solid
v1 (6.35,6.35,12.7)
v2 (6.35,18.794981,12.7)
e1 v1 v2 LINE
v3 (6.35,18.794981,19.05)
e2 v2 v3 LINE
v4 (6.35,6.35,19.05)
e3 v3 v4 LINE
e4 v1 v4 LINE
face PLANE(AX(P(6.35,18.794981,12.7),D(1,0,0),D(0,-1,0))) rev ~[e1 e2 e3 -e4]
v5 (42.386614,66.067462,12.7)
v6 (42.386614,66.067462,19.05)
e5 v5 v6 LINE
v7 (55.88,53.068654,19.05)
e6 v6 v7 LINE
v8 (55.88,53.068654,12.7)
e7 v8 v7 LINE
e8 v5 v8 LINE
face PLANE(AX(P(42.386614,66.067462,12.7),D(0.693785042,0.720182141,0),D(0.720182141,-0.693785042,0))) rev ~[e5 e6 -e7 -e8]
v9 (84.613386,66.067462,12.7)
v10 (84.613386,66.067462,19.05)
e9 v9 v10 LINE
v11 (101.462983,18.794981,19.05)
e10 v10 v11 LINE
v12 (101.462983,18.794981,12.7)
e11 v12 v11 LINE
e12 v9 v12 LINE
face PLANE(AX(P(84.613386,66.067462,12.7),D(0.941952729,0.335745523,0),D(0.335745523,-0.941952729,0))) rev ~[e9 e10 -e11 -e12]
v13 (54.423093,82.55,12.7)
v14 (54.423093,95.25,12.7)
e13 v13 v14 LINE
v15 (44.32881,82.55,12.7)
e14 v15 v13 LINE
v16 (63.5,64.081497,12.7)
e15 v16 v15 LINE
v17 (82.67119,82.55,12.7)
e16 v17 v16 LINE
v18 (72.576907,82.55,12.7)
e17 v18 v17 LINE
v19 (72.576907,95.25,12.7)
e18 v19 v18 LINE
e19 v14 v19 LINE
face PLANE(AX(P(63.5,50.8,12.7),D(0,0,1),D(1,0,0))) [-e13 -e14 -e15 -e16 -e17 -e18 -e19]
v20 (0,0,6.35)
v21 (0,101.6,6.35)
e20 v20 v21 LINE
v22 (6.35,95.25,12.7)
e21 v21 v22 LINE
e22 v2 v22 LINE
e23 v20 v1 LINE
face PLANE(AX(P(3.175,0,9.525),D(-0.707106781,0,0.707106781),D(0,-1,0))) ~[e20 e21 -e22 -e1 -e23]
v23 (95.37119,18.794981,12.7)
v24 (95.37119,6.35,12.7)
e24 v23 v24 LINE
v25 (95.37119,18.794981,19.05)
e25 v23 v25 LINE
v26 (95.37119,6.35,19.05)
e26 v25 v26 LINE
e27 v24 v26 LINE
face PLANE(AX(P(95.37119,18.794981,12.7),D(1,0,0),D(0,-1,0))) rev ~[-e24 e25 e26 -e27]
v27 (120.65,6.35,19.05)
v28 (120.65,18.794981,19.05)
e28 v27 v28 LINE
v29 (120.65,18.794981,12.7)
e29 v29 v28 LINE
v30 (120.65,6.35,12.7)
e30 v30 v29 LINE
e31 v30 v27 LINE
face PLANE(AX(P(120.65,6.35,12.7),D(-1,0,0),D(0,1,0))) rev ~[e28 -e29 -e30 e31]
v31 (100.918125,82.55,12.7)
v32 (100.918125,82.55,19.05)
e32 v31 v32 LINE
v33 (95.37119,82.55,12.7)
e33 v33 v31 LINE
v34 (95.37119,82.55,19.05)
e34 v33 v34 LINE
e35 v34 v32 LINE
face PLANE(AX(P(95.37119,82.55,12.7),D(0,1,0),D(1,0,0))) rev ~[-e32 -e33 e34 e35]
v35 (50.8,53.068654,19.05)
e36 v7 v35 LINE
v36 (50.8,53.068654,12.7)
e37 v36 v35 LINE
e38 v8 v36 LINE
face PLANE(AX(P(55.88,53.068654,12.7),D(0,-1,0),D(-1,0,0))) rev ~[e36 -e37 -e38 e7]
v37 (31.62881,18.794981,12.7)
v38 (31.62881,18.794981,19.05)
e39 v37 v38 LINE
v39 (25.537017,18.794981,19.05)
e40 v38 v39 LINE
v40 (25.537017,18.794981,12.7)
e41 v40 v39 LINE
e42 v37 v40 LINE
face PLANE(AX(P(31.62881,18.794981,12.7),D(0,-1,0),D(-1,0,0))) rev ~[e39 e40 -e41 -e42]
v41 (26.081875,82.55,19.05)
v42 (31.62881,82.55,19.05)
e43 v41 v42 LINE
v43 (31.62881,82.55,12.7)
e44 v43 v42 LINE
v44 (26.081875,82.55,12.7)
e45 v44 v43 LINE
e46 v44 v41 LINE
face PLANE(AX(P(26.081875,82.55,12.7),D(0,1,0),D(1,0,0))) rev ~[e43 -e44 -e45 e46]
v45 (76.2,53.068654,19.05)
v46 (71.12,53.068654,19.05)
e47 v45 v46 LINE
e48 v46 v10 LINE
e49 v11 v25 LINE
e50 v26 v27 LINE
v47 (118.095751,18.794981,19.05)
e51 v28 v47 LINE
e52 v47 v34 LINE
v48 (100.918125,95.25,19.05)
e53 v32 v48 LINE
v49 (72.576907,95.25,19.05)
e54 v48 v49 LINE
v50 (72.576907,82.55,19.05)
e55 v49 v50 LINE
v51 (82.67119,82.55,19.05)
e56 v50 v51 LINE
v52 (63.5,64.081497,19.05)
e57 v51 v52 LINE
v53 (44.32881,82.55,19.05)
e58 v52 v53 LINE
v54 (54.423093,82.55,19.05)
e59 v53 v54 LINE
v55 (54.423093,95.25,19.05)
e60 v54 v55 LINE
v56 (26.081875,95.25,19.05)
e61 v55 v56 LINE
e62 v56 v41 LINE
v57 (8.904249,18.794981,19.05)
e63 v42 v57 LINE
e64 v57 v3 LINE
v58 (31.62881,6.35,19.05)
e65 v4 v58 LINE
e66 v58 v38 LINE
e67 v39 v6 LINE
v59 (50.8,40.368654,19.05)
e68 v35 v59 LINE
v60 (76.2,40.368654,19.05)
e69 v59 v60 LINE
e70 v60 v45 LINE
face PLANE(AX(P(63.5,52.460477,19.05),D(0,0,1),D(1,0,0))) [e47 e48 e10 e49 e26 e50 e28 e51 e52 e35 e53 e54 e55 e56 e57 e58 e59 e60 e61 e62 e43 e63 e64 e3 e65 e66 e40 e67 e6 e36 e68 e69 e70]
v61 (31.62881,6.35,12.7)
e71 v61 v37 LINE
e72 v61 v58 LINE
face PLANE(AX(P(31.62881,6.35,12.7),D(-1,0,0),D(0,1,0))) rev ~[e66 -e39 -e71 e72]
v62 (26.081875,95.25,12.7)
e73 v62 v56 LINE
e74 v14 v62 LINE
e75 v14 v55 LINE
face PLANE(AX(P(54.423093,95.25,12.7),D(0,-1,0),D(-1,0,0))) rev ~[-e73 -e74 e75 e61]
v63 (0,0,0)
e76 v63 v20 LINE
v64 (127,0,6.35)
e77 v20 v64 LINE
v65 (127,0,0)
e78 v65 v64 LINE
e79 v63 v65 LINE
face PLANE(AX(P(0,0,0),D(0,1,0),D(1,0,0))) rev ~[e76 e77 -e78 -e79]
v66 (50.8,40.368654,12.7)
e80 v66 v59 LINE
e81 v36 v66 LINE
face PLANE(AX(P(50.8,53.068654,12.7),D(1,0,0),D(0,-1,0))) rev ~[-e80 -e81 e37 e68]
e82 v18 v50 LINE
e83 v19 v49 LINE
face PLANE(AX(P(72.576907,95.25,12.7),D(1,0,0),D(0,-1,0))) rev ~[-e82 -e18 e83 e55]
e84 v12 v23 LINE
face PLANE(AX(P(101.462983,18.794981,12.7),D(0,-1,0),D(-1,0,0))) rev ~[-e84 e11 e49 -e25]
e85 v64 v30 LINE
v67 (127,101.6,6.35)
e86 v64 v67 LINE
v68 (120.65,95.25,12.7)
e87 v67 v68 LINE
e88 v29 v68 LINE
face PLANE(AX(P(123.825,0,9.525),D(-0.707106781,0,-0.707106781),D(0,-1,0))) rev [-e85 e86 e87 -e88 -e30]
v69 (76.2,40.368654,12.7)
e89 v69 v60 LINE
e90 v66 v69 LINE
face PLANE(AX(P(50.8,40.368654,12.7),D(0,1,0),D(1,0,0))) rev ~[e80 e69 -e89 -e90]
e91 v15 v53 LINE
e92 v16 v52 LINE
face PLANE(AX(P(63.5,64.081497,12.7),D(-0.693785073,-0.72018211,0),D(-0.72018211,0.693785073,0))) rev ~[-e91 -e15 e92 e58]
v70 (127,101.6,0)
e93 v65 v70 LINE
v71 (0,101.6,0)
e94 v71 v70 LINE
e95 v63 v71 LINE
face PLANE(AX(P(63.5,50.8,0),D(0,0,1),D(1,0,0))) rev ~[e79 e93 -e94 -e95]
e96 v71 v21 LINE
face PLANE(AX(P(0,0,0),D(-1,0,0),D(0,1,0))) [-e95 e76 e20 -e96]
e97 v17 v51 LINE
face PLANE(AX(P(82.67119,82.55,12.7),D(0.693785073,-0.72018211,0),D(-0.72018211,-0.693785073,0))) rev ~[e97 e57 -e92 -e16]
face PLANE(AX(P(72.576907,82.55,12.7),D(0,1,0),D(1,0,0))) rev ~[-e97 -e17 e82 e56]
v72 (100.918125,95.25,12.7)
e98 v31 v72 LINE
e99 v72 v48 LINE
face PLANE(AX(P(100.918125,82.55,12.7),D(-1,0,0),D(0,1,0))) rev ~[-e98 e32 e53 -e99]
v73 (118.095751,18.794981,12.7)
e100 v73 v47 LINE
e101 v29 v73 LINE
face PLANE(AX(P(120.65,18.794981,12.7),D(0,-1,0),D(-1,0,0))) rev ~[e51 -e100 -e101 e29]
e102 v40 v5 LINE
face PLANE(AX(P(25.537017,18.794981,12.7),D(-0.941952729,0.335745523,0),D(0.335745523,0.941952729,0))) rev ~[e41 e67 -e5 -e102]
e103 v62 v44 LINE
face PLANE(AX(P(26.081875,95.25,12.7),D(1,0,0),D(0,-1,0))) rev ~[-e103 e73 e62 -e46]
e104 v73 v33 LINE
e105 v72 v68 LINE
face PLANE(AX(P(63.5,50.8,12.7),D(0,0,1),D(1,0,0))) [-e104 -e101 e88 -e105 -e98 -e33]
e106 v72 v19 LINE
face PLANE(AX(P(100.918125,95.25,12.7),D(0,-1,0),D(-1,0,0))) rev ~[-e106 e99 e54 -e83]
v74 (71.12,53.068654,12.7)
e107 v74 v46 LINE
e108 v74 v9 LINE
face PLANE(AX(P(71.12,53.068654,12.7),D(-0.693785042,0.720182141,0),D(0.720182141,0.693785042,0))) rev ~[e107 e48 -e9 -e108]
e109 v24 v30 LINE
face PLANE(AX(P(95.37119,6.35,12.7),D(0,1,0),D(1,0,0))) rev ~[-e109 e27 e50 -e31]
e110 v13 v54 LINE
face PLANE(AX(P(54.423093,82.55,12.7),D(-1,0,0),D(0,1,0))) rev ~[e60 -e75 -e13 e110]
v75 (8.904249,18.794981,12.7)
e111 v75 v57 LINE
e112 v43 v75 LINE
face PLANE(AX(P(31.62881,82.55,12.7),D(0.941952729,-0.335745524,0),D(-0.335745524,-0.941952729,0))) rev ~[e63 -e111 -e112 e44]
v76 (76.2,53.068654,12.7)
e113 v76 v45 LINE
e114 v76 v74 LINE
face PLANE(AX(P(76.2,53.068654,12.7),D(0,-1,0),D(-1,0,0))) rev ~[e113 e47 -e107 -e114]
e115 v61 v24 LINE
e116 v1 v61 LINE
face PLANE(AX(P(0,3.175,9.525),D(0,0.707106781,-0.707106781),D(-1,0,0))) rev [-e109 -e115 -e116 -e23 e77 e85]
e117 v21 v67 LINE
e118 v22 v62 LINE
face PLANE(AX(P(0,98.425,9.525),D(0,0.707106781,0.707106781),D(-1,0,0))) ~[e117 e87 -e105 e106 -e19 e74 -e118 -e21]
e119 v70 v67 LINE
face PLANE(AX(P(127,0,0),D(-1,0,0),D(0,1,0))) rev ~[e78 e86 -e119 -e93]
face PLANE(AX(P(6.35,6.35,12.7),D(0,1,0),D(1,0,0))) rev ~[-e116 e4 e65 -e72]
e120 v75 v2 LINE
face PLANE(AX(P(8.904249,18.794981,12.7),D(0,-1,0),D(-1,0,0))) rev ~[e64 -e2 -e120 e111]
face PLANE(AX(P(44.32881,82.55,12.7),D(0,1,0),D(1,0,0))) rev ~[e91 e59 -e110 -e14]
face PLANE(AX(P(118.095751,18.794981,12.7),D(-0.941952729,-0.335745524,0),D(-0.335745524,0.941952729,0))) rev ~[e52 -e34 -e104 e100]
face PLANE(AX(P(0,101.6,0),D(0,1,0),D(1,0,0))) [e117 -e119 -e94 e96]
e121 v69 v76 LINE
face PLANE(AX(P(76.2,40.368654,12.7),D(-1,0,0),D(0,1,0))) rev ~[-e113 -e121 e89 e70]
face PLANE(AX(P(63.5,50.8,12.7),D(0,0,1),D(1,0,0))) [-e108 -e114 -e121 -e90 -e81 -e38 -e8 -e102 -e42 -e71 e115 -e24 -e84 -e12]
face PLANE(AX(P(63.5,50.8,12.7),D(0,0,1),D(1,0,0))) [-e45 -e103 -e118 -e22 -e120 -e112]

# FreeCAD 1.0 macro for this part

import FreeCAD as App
import Part
import Sketcher
from FreeCAD import Vector
Q = App.Units.Quantity


def edges_at(feature, points):
    """Names of the edges that pass closest to the given points."""
    edges = feature.Shape.Edges
    near = lambda p: min(range(len(edges)), key=lambda i: edges[i].distToShape(Part.Vertex(*p))[0])
    return sorted({f"Edge{near(p) + 1}" for p in points})

doc = App.newDocument("Part")
body = doc.addObject("PartDesign::Body", "Body")

# Sketch on XY plane
sketch1 = doc.addObject("Sketcher::SketchObject", "Sketch")
body.addObject(sketch1)
sketch1.AttachmentSupport = (doc.XY_Plane, [""])
sketch1.MapMode = "FlatFace"
sketch1.addGeometry([
    Part.LineSegment(Vector(0, 102, 0), Vector(0, 0, 0)),
    Part.LineSegment(Vector(0, 0, 0), Vector(127, 0, 0)),
    Part.LineSegment(Vector(127, 0, 0), Vector(127, 102, 0)),
    Part.LineSegment(Vector(127, 102, 0), Vector(0, 102, 0)),
], False)
sketch1.addConstraint([
    Sketcher.Constraint("Coincident", 0, 2, 1, 1),
    Sketcher.Constraint("Coincident", 1, 2, 2, 1),
    Sketcher.Constraint("Coincident", 2, 2, 3, 1),
    Sketcher.Constraint("Coincident", 3, 2, 0, 1),
    Sketcher.Constraint("Vertical", 0),
    Sketcher.Constraint("Horizontal", 1),
    Sketcher.Constraint("Vertical", 2),
    Sketcher.Constraint("Horizontal", 3),
    Sketcher.Constraint("Coincident", 0, 2, -1, 1),
    Sketcher.Constraint("DistanceX", 1, 1, 1, 2, Q("5 in")),
    Sketcher.Constraint("DistanceY", 0, 2, 0, 1, Q("4 in")),
])
pad1 = doc.addObject("PartDesign::Pad", "Pad")
body.addObject(pad1)
pad1.Profile = sketch1
pad1.Length = Q("0.5 in")
doc.recompute()

chamfer = doc.addObject("PartDesign::Chamfer", "Chamfer")
body.addObject(chamfer)
chamfer.Base = (pad1, edges_at(pad1, [
    (0, 50.8, 12.7),
    (63.5, 101.6, 12.7),
    (127, 50.8, 12.7),
    (63.5, 0, 12.7),
]))
chamfer.Size = Q("0.25 in")

# Sketch on XY plane
sketch2 = doc.addObject("Sketcher::SketchObject", "Sketch001")
body.addObject(sketch2)
sketch2.AttachmentSupport = (doc.XY_Plane, [""])
sketch2.MapMode = "FlatFace"
sketch2.AttachmentOffset = App.Placement(Vector(0, 0, 0.5 * 25.4), App.Rotation())
sketch2.addGeometry([
    Part.LineSegment(Vector(82.7, 82.5, 0), Vector(63.5, 64.1, 0)),  # 0
    Part.LineSegment(Vector(63.5, 64.1, 0), Vector(44.3, 82.5, 0)),  # 1
    Part.LineSegment(Vector(44.3, 82.5, 0), Vector(54.4, 82.5, 0)),  # 2
    Part.LineSegment(Vector(54.4, 82.5, 0), Vector(54.4, 95.2, 0)),  # 3
    Part.LineSegment(Vector(54.4, 95.2, 0), Vector(26.1, 95.2, 0)),  # 4
    Part.LineSegment(Vector(26.1, 95.2, 0), Vector(26.1, 82.5, 0)),  # 5
    Part.LineSegment(Vector(26.1, 82.5, 0), Vector(31.6, 82.5, 0)),  # 6
    Part.LineSegment(Vector(31.6, 82.5, 0), Vector(8.9, 18.8, 0)),  # 7
    Part.LineSegment(Vector(8.9, 18.8, 0), Vector(6.3, 18.8, 0)),  # 8
    Part.LineSegment(Vector(6.3, 18.8, 0), Vector(6.3, 6.3, 0)),  # 9
    Part.LineSegment(Vector(6.3, 6.3, 0), Vector(31.6, 6.3, 0)),  # 10
    Part.LineSegment(Vector(31.6, 6.3, 0), Vector(31.6, 18.8, 0)),  # 11
    Part.LineSegment(Vector(31.6, 18.8, 0), Vector(25.5, 18.8, 0)),  # 12
    Part.LineSegment(Vector(25.5, 18.8, 0), Vector(42.4, 66.1, 0)),  # 13
    Part.LineSegment(Vector(42.4, 66.1, 0), Vector(55.9, 53.1, 0)),  # 14
    Part.LineSegment(Vector(55.9, 53.1, 0), Vector(50.8, 53.1, 0)),  # 15
    Part.LineSegment(Vector(50.8, 53.1, 0), Vector(50.8, 40.4, 0)),  # 16
    Part.LineSegment(Vector(50.8, 40.4, 0), Vector(76.2, 40.4, 0)),  # 17
    Part.LineSegment(Vector(76.2, 40.4, 0), Vector(76.2, 53.1, 0)),  # 18
    Part.LineSegment(Vector(76.2, 53.1, 0), Vector(71.1, 53.1, 0)),  # 19
    Part.LineSegment(Vector(71.1, 53.1, 0), Vector(84.6, 66.1, 0)),  # 20
    Part.LineSegment(Vector(84.6, 66.1, 0), Vector(101.5, 18.8, 0)),  # 21
    Part.LineSegment(Vector(101.5, 18.8, 0), Vector(95.4, 18.8, 0)),  # 22
    Part.LineSegment(Vector(95.4, 18.8, 0), Vector(95.4, 6.3, 0)),  # 23
    Part.LineSegment(Vector(95.4, 6.3, 0), Vector(120.7, 6.3, 0)),  # 24
    Part.LineSegment(Vector(120.7, 6.3, 0), Vector(120.7, 18.8, 0)),  # 25
    Part.LineSegment(Vector(120.7, 18.8, 0), Vector(118.1, 18.8, 0)),  # 26
    Part.LineSegment(Vector(118.1, 18.8, 0), Vector(95.4, 82.5, 0)),  # 27
    Part.LineSegment(Vector(95.4, 82.5, 0), Vector(100.9, 82.5, 0)),  # 28
    Part.LineSegment(Vector(100.9, 82.5, 0), Vector(100.9, 95.2, 0)),  # 29
    Part.LineSegment(Vector(100.9, 95.2, 0), Vector(72.6, 95.2, 0)),  # 30
    Part.LineSegment(Vector(72.6, 95.2, 0), Vector(72.6, 82.5, 0)),  # 31
    Part.LineSegment(Vector(72.6, 82.5, 0), Vector(82.7, 82.5, 0)),  # 32
], False)
sketch2.addConstraint([
    Sketcher.Constraint("Coincident", 0, 2, 1, 1),
    Sketcher.Constraint("Coincident", 1, 2, 2, 1),
    Sketcher.Constraint("Coincident", 2, 2, 3, 1),
    Sketcher.Constraint("Coincident", 3, 2, 4, 1),
    Sketcher.Constraint("Coincident", 4, 2, 5, 1),
    Sketcher.Constraint("Coincident", 5, 2, 6, 1),
    Sketcher.Constraint("Coincident", 6, 2, 7, 1),
    Sketcher.Constraint("Coincident", 7, 2, 8, 1),
    Sketcher.Constraint("Coincident", 8, 2, 9, 1),
    Sketcher.Constraint("Coincident", 9, 2, 10, 1),
    Sketcher.Constraint("Coincident", 10, 2, 11, 1),
    Sketcher.Constraint("Coincident", 11, 2, 12, 1),
    Sketcher.Constraint("Coincident", 12, 2, 13, 1),
    Sketcher.Constraint("Coincident", 13, 2, 14, 1),
    Sketcher.Constraint("Coincident", 14, 2, 15, 1),
    Sketcher.Constraint("Coincident", 15, 2, 16, 1),
    Sketcher.Constraint("Coincident", 16, 2, 17, 1),
    Sketcher.Constraint("Coincident", 17, 2, 18, 1),
    Sketcher.Constraint("Coincident", 18, 2, 19, 1),
    Sketcher.Constraint("Coincident", 19, 2, 20, 1),
    Sketcher.Constraint("Coincident", 20, 2, 21, 1),
    Sketcher.Constraint("Coincident", 21, 2, 22, 1),
    Sketcher.Constraint("Coincident", 22, 2, 23, 1),
    Sketcher.Constraint("Coincident", 23, 2, 24, 1),
    Sketcher.Constraint("Coincident", 24, 2, 25, 1),
    Sketcher.Constraint("Coincident", 25, 2, 26, 1),
    Sketcher.Constraint("Coincident", 26, 2, 27, 1),
    Sketcher.Constraint("Coincident", 27, 2, 28, 1),
    Sketcher.Constraint("Coincident", 28, 2, 29, 1),
    Sketcher.Constraint("Coincident", 29, 2, 30, 1),
    Sketcher.Constraint("Coincident", 30, 2, 31, 1),
    Sketcher.Constraint("Coincident", 31, 2, 32, 1),
    Sketcher.Constraint("Coincident", 32, 2, 0, 1),
    Sketcher.Constraint("Horizontal", 2),
    Sketcher.Constraint("Vertical", 3),
    Sketcher.Constraint("Horizontal", 4),
    Sketcher.Constraint("Vertical", 5),
    Sketcher.Constraint("Horizontal", 6),
    Sketcher.Constraint("Horizontal", 8),
    Sketcher.Constraint("Vertical", 9),
    Sketcher.Constraint("Horizontal", 10),
    Sketcher.Constraint("Vertical", 11),
    Sketcher.Constraint("Horizontal", 12),
    Sketcher.Constraint("Horizontal", 15),
    Sketcher.Constraint("Vertical", 16),
    Sketcher.Constraint("Horizontal", 17),
    Sketcher.Constraint("Vertical", 18),
    Sketcher.Constraint("Horizontal", 19),
    Sketcher.Constraint("Horizontal", 22),
    Sketcher.Constraint("Vertical", 23),
    Sketcher.Constraint("Horizontal", 24),
    Sketcher.Constraint("Vertical", 25),
    Sketcher.Constraint("Horizontal", 26),
    Sketcher.Constraint("Horizontal", 28),
    Sketcher.Constraint("Vertical", 29),
    Sketcher.Constraint("Horizontal", 30),
    Sketcher.Constraint("Vertical", 31),
    Sketcher.Constraint("Horizontal", 32),
    Sketcher.Constraint("Parallel", 7, 13),
    Sketcher.Constraint("Parallel", 1, 14),
    Sketcher.Constraint("Parallel", 0, 20),
    Sketcher.Constraint("Parallel", 21, 27),
    Sketcher.Constraint("Horizontal", 2, 2, 5, 2),
    Sketcher.Constraint("Horizontal", 8, 2, 11, 2),
    Sketcher.Constraint("Horizontal", 15, 2, 18, 2),
    Sketcher.Constraint("Horizontal", 13, 2, 20, 2),
    Sketcher.Constraint("Horizontal", 12, 2, 21, 2),
    Sketcher.Constraint("Horizontal", 10, 2, 23, 2),
    Sketcher.Constraint("Horizontal", 22, 2, 25, 2),
    Sketcher.Constraint("Horizontal", 6, 2, 27, 2),
    Sketcher.Constraint("Horizontal", 4, 2, 29, 2),
    Sketcher.Constraint("Horizontal", 28, 2, 31, 2),
    Sketcher.Constraint("Vertical", 6, 2, 10, 2),
    Sketcher.Constraint("Vertical", 23, 2, 27, 2),
    Sketcher.Constraint("Equal", 15, 19),
    Sketcher.Constraint("Equal", 12, 22),
    Sketcher.Constraint("Equal", 10, 24),
    Sketcher.Constraint("Equal", 8, 26),
    Sketcher.Constraint("Equal", 6, 28),
    Sketcher.Constraint("Equal", 4, 30),
    Sketcher.Constraint("Equal", 2, 32),
    Sketcher.Constraint("Equal", 5, 16),
    Sketcher.Constraint("Equal", 0, 1),
    Sketcher.Constraint("DistanceX", 17, 1, 17, 2, Q("1 in")),
    Sketcher.Constraint("DistanceX", 15, 2, 15, 1, Q("0.2 in")),
    Sketcher.Constraint("DistanceY", 3, 1, 3, 2, Q("0.5 in")),
    Sketcher.Constraint("DistanceX", -1, 1, 15, 2, Q("2 in")),
    Sketcher.Constraint("DistanceY", 9, 2, 5, 2, Q("3 in")),
    Sketcher.Constraint("DistanceX", 6, 2, 1, 2, Q("0.5 in")),
    Sketcher.Constraint("DistanceY", -1, 1, 1, 2, Q("3.25 in")),
    Sketcher.Constraint("DistanceX", -1, 1, 8, 2, Q("0.25 in")),
    Sketcher.Constraint("DistanceX", 4, 2, 4, 1, 28.341218),
    Sketcher.Constraint("DistanceX", 8, 2, 8, 1, 2.554249),
    Sketcher.Constraint("DistanceX", 10, 1, 10, 2, 25.27881),
    Sketcher.Constraint("DistanceY", 9, 2, 9, 1, 12.444981),
    Sketcher.Constraint("Distance", 0, 26.61992),
    Sketcher.Constraint("Distance", 13, 50.185619),
    Sketcher.Constraint("DistanceX", 2, 1, 2, 2, 10.094283),
    Sketcher.Constraint("DistanceX", 12, 2, 12, 1, 6.091793),
])
pad2 = doc.addObject("PartDesign::Pad", "Pad001")
body.addObject(pad2)
pad2.Profile = sketch2
pad2.Length = Q("0.25 in")

doc.recompute()
